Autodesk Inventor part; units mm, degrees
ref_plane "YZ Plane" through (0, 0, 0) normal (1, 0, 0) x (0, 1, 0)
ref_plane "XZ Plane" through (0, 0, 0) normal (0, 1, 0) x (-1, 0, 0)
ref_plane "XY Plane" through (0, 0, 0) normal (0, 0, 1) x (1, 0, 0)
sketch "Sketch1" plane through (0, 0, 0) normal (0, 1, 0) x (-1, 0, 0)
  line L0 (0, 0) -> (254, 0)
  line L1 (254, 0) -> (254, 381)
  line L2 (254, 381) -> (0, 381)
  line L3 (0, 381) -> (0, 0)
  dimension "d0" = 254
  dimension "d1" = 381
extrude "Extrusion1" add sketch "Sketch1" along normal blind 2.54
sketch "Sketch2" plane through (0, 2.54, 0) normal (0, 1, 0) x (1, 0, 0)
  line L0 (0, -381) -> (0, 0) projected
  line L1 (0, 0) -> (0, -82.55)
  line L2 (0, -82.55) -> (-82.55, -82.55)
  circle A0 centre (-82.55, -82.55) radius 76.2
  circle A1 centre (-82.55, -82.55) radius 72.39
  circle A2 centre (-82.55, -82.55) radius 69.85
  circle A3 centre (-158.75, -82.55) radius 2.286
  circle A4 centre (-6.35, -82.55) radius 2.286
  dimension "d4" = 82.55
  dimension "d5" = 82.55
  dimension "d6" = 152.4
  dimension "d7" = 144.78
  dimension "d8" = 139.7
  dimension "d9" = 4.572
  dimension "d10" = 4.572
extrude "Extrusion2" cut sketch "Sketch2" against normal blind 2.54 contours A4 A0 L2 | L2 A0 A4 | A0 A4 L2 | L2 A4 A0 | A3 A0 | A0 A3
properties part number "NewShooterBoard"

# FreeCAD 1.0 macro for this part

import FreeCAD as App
import Part
import Sketcher
from FreeCAD import Vector
Q = App.Units.Quantity

doc = App.newDocument("Part")
params = doc.addObject("Spreadsheet::Sheet", "Params")
for row, (alias, value) in enumerate([
    ("sketch1_width", "10 in"),
    ("sketch1_height", "15 in"),
    ("pad1_length", "0.1 in"),
    ("sketch2_diameter", "0.18 in"),
    ("pocket1_length", "0.1 in"),
], start=1):
    params.set(f"A{row}", alias)
    params.set(f"B{row}", "=" + value)
    params.setAlias(f"B{row}", alias)

body = doc.addObject("PartDesign::Body", "Body")

# Sketch on XZ plane
sketch1 = body.newObject("Sketcher::SketchObject", "Sketch")
sketch1.AttachmentSupport = (doc.getObject("XZ_Plane"), [""])
sketch1.MapMode = "FlatFace"
sketch1.addGeometry(Part.LineSegment(Vector(0, 381, 0), Vector(0, 0, 0)), False)
sketch1.addGeometry(Part.LineSegment(Vector(0, 0, 0), Vector(-254, 0, 0)), False)
sketch1.addGeometry(Part.LineSegment(Vector(-254, 0, 0), Vector(-254, 381, 0)), False)
sketch1.addGeometry(Part.LineSegment(Vector(-254, 381, 0), Vector(0, 381, 0)), False)
sketch1.addConstraint(Sketcher.Constraint("Coincident", 0, 2, 1, 1))
sketch1.addConstraint(Sketcher.Constraint("Coincident", 1, 2, 2, 1))
sketch1.addConstraint(Sketcher.Constraint("Coincident", 2, 2, 3, 1))
sketch1.addConstraint(Sketcher.Constraint("Coincident", 3, 2, 0, 1))
sketch1.addConstraint(Sketcher.Constraint("Vertical", 0))
sketch1.addConstraint(Sketcher.Constraint("Horizontal", 1))
sketch1.addConstraint(Sketcher.Constraint("Vertical", 2))
sketch1.addConstraint(Sketcher.Constraint("Horizontal", 3))
sketch1.addConstraint(Sketcher.Constraint("Coincident", 0, 2, -1, 1))
sketch1.addConstraint(Sketcher.Constraint("DistanceX", 1, 2, 1, 1, Q("10 in")))
sketch1.addConstraint(Sketcher.Constraint("DistanceY", 0, 2, 0, 1, Q("15 in")))
sketch1.setExpression("Constraints[9]", "Params.sketch1_width")
sketch1.setExpression("Constraints[10]", "Params.sketch1_height")
pad1 = body.newObject("PartDesign::Pad", "Pad")
pad1.Profile = sketch1
pad1.setExpression("Length", "Params.pad1_length")
pad1.Reversed = True

# Sketch on XZ plane
sketch2 = body.newObject("Sketcher::SketchObject", "Sketch001")
sketch2.AttachmentSupport = (doc.getObject("XZ_Plane"), [""])
sketch2.MapMode = "FlatFace"
sketch2.AttachmentOffset = App.Placement(Vector(0, 0, -0.1 * 25.4), App.Rotation())
sketch2.addGeometry(Part.Circle(Vector(-6.3, 82.5, 0), Vector(0, 0, 1), 2.3), False)
sketch2.addGeometry(Part.Circle(Vector(-158.8, 82.5, 0), Vector(0, 0, 1), 2.3), False)
sketch2.addConstraint(Sketcher.Constraint("Equal", 0, 1))
sketch2.addConstraint(Sketcher.Constraint("Horizontal", 0, 3, 1, 3))
sketch2.addConstraint(Sketcher.Constraint("Diameter", 0, Q("0.18 in")))
sketch2.addConstraint(Sketcher.Constraint("DistanceX", 1, 3, 0, 3, Q("6 in")))
sketch2.addConstraint(Sketcher.Constraint("DistanceY", -1, 1, 0, 3, Q("3.25 in")))
sketch2.addConstraint(Sketcher.Constraint("DistanceX", 0, 3, -1, 1, Q("0.25 in")))
sketch2.setExpression("Constraints[2]", "Params.sketch2_diameter")
pocket1 = body.newObject("PartDesign::Pocket", "Pocket")
pocket1.Profile = sketch2
pocket1.setExpression("Length", "Params.pocket1_length")
pocket1.Reversed = True

doc.recompute()
